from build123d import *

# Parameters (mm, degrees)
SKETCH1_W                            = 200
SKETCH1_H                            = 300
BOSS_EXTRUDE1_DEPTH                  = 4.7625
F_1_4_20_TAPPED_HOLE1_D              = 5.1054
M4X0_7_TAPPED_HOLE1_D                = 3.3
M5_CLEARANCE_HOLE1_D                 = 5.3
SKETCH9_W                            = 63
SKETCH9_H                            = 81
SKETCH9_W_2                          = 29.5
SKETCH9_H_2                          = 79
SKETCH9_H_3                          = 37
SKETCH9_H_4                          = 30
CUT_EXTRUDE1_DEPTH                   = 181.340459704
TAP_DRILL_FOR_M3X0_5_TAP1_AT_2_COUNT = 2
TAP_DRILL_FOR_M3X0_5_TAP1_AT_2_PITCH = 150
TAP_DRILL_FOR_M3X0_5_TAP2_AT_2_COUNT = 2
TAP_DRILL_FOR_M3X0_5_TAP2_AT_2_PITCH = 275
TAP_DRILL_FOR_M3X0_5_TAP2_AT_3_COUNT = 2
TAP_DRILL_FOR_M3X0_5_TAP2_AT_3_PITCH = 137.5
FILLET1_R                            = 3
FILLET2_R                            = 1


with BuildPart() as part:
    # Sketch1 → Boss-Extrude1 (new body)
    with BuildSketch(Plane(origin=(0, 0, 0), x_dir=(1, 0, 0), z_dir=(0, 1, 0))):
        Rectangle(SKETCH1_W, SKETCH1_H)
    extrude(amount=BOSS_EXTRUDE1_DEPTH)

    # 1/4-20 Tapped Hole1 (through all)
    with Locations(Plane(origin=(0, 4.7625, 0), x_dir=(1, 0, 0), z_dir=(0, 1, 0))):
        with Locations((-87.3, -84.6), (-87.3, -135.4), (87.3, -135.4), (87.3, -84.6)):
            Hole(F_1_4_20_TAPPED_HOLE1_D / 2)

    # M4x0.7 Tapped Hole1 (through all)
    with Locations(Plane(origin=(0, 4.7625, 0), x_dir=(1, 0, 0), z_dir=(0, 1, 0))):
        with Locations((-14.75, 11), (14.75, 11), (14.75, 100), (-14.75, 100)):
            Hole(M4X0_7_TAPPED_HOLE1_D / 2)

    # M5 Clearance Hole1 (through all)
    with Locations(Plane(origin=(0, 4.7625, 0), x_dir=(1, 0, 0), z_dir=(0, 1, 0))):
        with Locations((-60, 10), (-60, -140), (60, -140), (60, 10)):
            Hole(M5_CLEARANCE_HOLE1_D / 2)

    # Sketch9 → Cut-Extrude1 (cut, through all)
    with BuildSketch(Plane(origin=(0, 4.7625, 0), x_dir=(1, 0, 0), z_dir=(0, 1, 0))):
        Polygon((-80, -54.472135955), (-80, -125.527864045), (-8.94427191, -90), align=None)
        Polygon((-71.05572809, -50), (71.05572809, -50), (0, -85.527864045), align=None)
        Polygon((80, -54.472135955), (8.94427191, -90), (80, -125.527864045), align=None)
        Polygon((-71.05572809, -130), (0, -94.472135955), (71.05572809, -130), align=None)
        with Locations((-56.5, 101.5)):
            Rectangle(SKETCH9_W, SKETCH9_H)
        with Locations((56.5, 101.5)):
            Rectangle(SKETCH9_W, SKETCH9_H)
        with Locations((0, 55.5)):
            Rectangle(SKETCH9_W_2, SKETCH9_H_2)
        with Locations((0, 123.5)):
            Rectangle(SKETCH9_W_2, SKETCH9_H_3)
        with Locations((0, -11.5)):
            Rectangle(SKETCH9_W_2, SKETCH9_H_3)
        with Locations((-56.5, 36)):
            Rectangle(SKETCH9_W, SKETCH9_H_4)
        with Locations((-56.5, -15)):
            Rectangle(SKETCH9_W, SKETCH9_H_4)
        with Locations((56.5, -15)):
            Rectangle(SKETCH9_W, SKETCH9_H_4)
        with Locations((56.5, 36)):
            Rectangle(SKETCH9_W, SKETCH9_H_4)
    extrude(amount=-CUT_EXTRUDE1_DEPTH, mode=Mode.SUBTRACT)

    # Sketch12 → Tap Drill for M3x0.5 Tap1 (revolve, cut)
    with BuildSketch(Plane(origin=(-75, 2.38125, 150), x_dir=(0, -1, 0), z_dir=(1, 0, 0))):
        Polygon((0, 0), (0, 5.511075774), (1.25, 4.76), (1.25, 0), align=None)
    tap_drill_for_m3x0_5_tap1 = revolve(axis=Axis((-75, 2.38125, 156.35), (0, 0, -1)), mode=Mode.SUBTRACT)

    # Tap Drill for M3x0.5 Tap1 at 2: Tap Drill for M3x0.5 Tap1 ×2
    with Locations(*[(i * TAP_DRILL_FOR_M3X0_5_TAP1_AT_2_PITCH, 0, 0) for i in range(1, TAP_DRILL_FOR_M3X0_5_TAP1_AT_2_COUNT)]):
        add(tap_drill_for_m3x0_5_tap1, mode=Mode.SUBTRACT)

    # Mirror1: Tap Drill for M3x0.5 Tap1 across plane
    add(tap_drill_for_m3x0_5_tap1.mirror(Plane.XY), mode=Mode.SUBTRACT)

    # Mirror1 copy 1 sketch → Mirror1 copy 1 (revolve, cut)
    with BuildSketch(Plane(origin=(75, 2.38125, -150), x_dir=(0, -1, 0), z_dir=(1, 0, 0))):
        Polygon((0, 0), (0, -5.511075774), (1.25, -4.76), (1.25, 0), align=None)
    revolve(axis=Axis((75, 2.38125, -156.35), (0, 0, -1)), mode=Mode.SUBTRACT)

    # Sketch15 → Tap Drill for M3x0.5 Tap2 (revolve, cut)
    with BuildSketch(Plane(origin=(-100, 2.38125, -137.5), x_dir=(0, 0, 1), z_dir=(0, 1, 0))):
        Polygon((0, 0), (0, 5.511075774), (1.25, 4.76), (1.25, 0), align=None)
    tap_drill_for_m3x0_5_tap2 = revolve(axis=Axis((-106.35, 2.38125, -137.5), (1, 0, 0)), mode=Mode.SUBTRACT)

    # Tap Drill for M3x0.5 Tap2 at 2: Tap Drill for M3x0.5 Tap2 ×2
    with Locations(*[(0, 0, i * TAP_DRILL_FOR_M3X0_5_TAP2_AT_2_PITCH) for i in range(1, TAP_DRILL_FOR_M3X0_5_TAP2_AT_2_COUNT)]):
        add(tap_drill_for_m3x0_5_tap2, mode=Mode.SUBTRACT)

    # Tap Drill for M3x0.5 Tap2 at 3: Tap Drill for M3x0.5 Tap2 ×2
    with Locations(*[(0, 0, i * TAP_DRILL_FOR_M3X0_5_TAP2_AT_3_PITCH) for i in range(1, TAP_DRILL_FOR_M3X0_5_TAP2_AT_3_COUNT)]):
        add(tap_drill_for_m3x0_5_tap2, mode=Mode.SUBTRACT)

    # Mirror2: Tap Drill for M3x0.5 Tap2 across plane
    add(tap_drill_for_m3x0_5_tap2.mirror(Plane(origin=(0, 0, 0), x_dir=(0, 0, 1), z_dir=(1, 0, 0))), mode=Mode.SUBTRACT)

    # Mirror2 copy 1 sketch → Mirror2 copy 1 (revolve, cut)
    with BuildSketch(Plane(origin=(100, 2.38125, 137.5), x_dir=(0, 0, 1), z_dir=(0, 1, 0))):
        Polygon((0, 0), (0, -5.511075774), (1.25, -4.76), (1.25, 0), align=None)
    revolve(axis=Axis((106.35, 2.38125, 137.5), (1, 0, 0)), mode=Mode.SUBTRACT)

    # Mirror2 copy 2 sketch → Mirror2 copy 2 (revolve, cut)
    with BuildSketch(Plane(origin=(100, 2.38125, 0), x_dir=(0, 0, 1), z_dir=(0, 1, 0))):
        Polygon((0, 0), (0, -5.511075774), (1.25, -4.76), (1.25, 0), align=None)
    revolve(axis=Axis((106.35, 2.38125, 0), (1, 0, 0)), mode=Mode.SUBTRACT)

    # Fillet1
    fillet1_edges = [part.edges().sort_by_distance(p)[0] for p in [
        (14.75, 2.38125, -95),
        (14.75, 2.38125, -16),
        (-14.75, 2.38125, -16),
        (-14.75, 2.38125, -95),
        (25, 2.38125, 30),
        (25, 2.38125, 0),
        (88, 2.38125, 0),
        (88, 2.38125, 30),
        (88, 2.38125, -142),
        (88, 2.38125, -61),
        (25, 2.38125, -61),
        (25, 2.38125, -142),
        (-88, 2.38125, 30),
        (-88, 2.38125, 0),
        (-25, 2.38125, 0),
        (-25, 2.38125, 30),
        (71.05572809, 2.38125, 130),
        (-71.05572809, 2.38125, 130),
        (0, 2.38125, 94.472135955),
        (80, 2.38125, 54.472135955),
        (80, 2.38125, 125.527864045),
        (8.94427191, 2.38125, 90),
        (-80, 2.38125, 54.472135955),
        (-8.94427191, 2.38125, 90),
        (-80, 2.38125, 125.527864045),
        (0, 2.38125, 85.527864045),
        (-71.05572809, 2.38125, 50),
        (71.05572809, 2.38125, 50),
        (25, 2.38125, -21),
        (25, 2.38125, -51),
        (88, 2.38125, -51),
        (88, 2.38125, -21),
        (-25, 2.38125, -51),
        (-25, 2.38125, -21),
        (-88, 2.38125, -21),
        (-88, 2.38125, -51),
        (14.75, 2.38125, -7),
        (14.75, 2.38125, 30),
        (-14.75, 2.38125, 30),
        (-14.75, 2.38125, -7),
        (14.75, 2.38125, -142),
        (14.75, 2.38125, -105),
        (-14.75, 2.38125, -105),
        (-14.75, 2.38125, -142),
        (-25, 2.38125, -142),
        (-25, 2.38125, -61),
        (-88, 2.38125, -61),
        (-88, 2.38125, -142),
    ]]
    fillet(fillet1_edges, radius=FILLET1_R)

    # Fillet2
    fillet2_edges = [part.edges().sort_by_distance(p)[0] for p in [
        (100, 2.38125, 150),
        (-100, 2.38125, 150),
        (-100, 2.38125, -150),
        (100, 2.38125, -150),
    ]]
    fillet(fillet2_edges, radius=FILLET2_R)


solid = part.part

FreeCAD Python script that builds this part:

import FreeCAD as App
import Part
import Sketcher

V = App.Vector
Q = App.Units.Quantity


def edges_at(feature, points):
    """Names of the edges that pass closest to the given points."""
    edges = feature.Shape.Edges
    near = lambda p: min(range(len(edges)), key=lambda i: edges[i].distToShape(Part.Vertex(*p))[0])
    return sorted({f"Edge{near(p) + 1}" for p in points})


def add_polygon(sketch, points):
    """Adds a closed chain of lines whose ends are joined by coincident constraints."""
    first, n = sketch.GeometryCount, len(points)
    for a, b in zip(points, points[1:] + points[:1]):
        sketch.addGeometry(Part.LineSegment(App.Vector(*a, 0), App.Vector(*b, 0)), False)
    for i in range(n):
        sketch.addConstraint(Sketcher.Constraint("Coincident", first + i, 2, first + (i + 1) % n, 1))

doc = App.newDocument("Part")
body = doc.addObject("PartDesign::Body", "Body")

# Sketch on XZ plane
sketch1 = body.newObject("Sketcher::SketchObject", "Sketch")
sketch1.AttachmentSupport = (doc.getObject("XZ_Plane"), [""])
sketch1.MapMode = "FlatFace"
add_polygon(sketch1, [(-100, -150), (-100, 150), (100, 150), (100, -150)])  # lines 0-3
sketch1.addConstraint([
    Sketcher.Constraint("Vertical", 0),
    Sketcher.Constraint("Horizontal", 1),
    Sketcher.Constraint("Vertical", 2),
    Sketcher.Constraint("Horizontal", 3),
    Sketcher.Constraint("Symmetric", 0, 2, 2, 2, -1, 1),
    Sketcher.Constraint("DistanceX", 1, 1, 1, 2, 200.0),
    Sketcher.Constraint("DistanceY", 0, 1, 0, 2, 300.0),
])
pad1 = body.newObject("PartDesign::Pad", "Pad")
pad1.Profile = sketch1
pad1.Length = 4.7625
pad1.Reversed = True

# Sketch on XZ plane
sketch2 = body.newObject("Sketcher::SketchObject", "Sketch001")
sketch2.AttachmentSupport = (doc.getObject("XZ_Plane"), [""])
sketch2.MapMode = "FlatFace"
sketch2.AttachmentOffset = App.Placement(V(0, 0, -4.7625), App.Rotation())
sketch2.addGeometry([
    Part.Circle(V(-87.3, 84.6, 0), V(0, 0, 1), 2.5527),
    Part.Circle(V(-87.3, 135.4, 0), V(0, 0, 1), 2.5527),
    Part.Circle(V(87.3, 135.4, 0), V(0, 0, 1), 2.5527),
    Part.Circle(V(87.3, 84.6, 0), V(0, 0, 1), 2.5527),
], False)
sketch2.addConstraint([
    Sketcher.Constraint("Equal", 0, 1),
    Sketcher.Constraint("Equal", 1, 2),
    Sketcher.Constraint("Equal", 2, 3),
    Sketcher.Constraint("Symmetric", 1, 3, 2, 3, -2),
    Sketcher.Constraint("Symmetric", 0, 3, 3, 3, -2),
    Sketcher.Constraint("Vertical", 0, 3, 1, 3),
    Sketcher.Constraint("Diameter", 0, 5.1054),
    Sketcher.Constraint("DistanceX", 0, 3, -1, 1, 87.3),
    Sketcher.Constraint("DistanceY", -1, 1, 0, 3, 84.6),
    Sketcher.Constraint("DistanceY", -1, 1, 1, 3, 135.4),
])
doc.recompute()
hole = body.newObject("PartDesign::Hole", "Hole")
hole.Profile = sketch2
hole.ThreadType = "None"
hole.Diameter = 5.1054
hole.DepthType = "ThroughAll"
hole.Reversed = True

# Sketch on XZ plane
sketch3 = body.newObject("Sketcher::SketchObject", "Sketch002")
sketch3.AttachmentSupport = (doc.getObject("XZ_Plane"), [""])
sketch3.MapMode = "FlatFace"
sketch3.AttachmentOffset = App.Placement(V(0, 0, -4.7625), App.Rotation())
sketch3.addGeometry([
    Part.Circle(V(-14.75, -11, 0), V(0, 0, 1), 1.65),
    Part.Circle(V(14.75, -11, 0), V(0, 0, 1), 1.65),
    Part.Circle(V(14.75, -100, 0), V(0, 0, 1), 1.65),
    Part.Circle(V(-14.75, -100, 0), V(0, 0, 1), 1.65),
], False)
sketch3.addConstraint([
    Sketcher.Constraint("Equal", 0, 1),
    Sketcher.Constraint("Equal", 1, 2),
    Sketcher.Constraint("Equal", 2, 3),
    Sketcher.Constraint("Symmetric", 0, 3, 1, 3, -2),
    Sketcher.Constraint("Symmetric", 2, 3, 3, 3, -2),
    Sketcher.Constraint("Vertical", 1, 3, 2, 3),
    Sketcher.Constraint("Diameter", 0, 3.3),
    Sketcher.Constraint("DistanceY", 0, 3, -1, 1, 11.0),
    Sketcher.Constraint("DistanceY", 2, 3, -1, 1, 100.0),
    Sketcher.Constraint("DistanceX", 0, 3, 1, 3, 29.5),
])
doc.recompute()
hole2 = body.newObject("PartDesign::Hole", "Hole001")
hole2.Profile = sketch3
hole2.ThreadType = "None"
hole2.Diameter = 3.3
hole2.DepthType = "ThroughAll"
hole2.Reversed = True

# Sketch on XZ plane
sketch4 = body.newObject("Sketcher::SketchObject", "Sketch003")
sketch4.AttachmentSupport = (doc.getObject("XZ_Plane"), [""])
sketch4.MapMode = "FlatFace"
sketch4.AttachmentOffset = App.Placement(V(0, 0, -4.7625), App.Rotation())
sketch4.addGeometry([
    Part.Circle(V(-60, -10, 0), V(0, 0, 1), 2.65),
    Part.Circle(V(-60, 140, 0), V(0, 0, 1), 2.65),
    Part.Circle(V(60, 140, 0), V(0, 0, 1), 2.65),
    Part.Circle(V(60, -10, 0), V(0, 0, 1), 2.65),
], False)
sketch4.addConstraint([
    Sketcher.Constraint("Equal", 0, 1),
    Sketcher.Constraint("Equal", 1, 2),
    Sketcher.Constraint("Equal", 2, 3),
    Sketcher.Constraint("Symmetric", 1, 3, 2, 3, -2),
    Sketcher.Constraint("Symmetric", 0, 3, 3, 3, -2),
    Sketcher.Constraint("Vertical", 0, 3, 1, 3),
    Sketcher.Constraint("Diameter", 0, 5.3),
    Sketcher.Constraint("DistanceX", 0, 3, -1, 1, 60.0),
    Sketcher.Constraint("DistanceY", 0, 3, -1, 1, 10.0),
    Sketcher.Constraint("DistanceY", -1, 1, 1, 3, 140.0),
])
doc.recompute()
hole3 = body.newObject("PartDesign::Hole", "Hole002")
hole3.Profile = sketch4
hole3.ThreadType = "None"
hole3.Diameter = 5.3
hole3.DepthType = "ThroughAll"
hole3.Reversed = True

# Sketch on XZ plane
sketch5 = body.newObject("Sketcher::SketchObject", "Sketch004")
sketch5.AttachmentSupport = (doc.getObject("XZ_Plane"), [""])
sketch5.MapMode = "FlatFace"
sketch5.AttachmentOffset = App.Placement(V(0, 0, -4.7625), App.Rotation())
add_polygon(sketch5, [(-80, 54.472136), (-80, 125.527864), (-8.944272, 90)])  # lines 0-2
add_polygon(sketch5, [(71.055728, 50), (-71.055728, 50), (0, 85.527864)])  # lines 3-5
add_polygon(sketch5, [(80, 54.472136), (8.944272, 90), (80, 125.527864)])  # lines 6-8
add_polygon(sketch5, [(0, 94.472136), (-71.055728, 130), (71.055728, 130)])  # lines 9-11
add_polygon(sketch5, [(-88, -142), (-88, -61), (-25, -61), (-25, -142)])  # lines 12-15
add_polygon(sketch5, [(25, -142), (25, -61), (88, -61), (88, -142)])  # lines 16-19
add_polygon(sketch5, [(-14.75, -95), (-14.75, -16), (14.75, -16), (14.75, -95)])  # lines 20-23
add_polygon(sketch5, [(-14.75, -142), (-14.75, -105), (14.75, -105), (14.75, -142)])  # lines 24-27
add_polygon(sketch5, [(-14.75, -7), (-14.75, 30), (14.75, 30), (14.75, -7)])  # lines 28-31
add_polygon(sketch5, [(-88, -51), (-88, -21), (-25, -21), (-25, -51)])  # lines 32-35
add_polygon(sketch5, [(-88, 0), (-88, 30), (-25, 30), (-25, 0)])  # lines 36-39
add_polygon(sketch5, [(25, 0), (25, 30), (88, 30), (88, 0)])  # lines 40-43
add_polygon(sketch5, [(25, -51), (25, -21), (88, -21), (88, -51)])  # lines 44-47
sketch5.addConstraint([
    Sketcher.Constraint("Vertical", 0),
    Sketcher.Constraint("Horizontal", 3),
    Sketcher.Constraint("Vertical", 8),
    Sketcher.Constraint("Horizontal", 10),
    Sketcher.Constraint("Vertical", 12),
    Sketcher.Constraint("Horizontal", 13),
    Sketcher.Constraint("Vertical", 14),
    Sketcher.Constraint("Horizontal", 15),
    Sketcher.Constraint("Vertical", 16),
    Sketcher.Constraint("Horizontal", 17),
    Sketcher.Constraint("Vertical", 18),
    Sketcher.Constraint("Horizontal", 19),
    Sketcher.Constraint("Vertical", 20),
    Sketcher.Constraint("Horizontal", 21),
    Sketcher.Constraint("Vertical", 22),
    Sketcher.Constraint("Horizontal", 23),
    Sketcher.Constraint("Vertical", 24),
    Sketcher.Constraint("Horizontal", 25),
    Sketcher.Constraint("Vertical", 26),
    Sketcher.Constraint("Horizontal", 27),
    Sketcher.Constraint("Vertical", 28),
    Sketcher.Constraint("Horizontal", 29),
    Sketcher.Constraint("Vertical", 30),
    Sketcher.Constraint("Horizontal", 31),
    Sketcher.Constraint("Vertical", 32),
    Sketcher.Constraint("Horizontal", 33),
    Sketcher.Constraint("Vertical", 34),
    Sketcher.Constraint("Horizontal", 35),
    Sketcher.Constraint("Vertical", 36),
    Sketcher.Constraint("Horizontal", 37),
    Sketcher.Constraint("Vertical", 38),
    Sketcher.Constraint("Horizontal", 39),
    Sketcher.Constraint("Vertical", 40),
    Sketcher.Constraint("Horizontal", 41),
    Sketcher.Constraint("Vertical", 42),
    Sketcher.Constraint("Horizontal", 43),
    Sketcher.Constraint("Vertical", 44),
    Sketcher.Constraint("Horizontal", 45),
    Sketcher.Constraint("Vertical", 46),
    Sketcher.Constraint("Horizontal", 47),
    Sketcher.Constraint("Symmetric", 39, 2, 42, 2, -1, 1),
    Sketcher.Constraint("Symmetric", 1, 2, 6, 2, -2),
    Sketcher.Constraint("Symmetric", 0, 2, 7, 2, -2),
    Sketcher.Constraint("Symmetric", 13, 2, 16, 2, -2),
    Sketcher.Constraint("Symmetric", 15, 2, 18, 2, -2),
    Sketcher.Constraint("Symmetric", 37, 2, 40, 2, -2),
    Sketcher.Constraint("Symmetric", 33, 2, 44, 2, -2),
    Sketcher.Constraint("Symmetric", 35, 2, 46, 2, -2),
    Sketcher.Constraint("PointOnObject", 4, 2, -2),
    Sketcher.Constraint("PointOnObject", 11, 2, -2),
    Sketcher.Constraint("PointOnObject", 38, 2, -1),
    Sketcher.Constraint("Parallel", 2, 4),
    Sketcher.Constraint("Parallel", 1, 5),
    Sketcher.Constraint("Parallel", 5, 6),
    Sketcher.Constraint("Parallel", 4, 7),
    Sketcher.Constraint("Parallel", 6, 9),
    Sketcher.Constraint("Parallel", 7, 11),
    Sketcher.Constraint("Horizontal", 19, 2, 26, 2),
    Sketcher.Constraint("Horizontal", 29, 2, 36, 2),
    Sketcher.Constraint("Vertical", 3, 2, 9, 2),
    Sketcher.Constraint("Vertical", 23, 2, 24, 2),
    Sketcher.Constraint("Vertical", 22, 2, 25, 2),
    Sketcher.Constraint("Vertical", 27, 2, 28, 2),
    Sketcher.Constraint("Vertical", 26, 2, 29, 2),
    Sketcher.Constraint("Vertical", 15, 2, 32, 2),
    Sketcher.Constraint("Vertical", 14, 2, 33, 2),
    Sketcher.Constraint("Vertical", 35, 2, 36, 2),
    Sketcher.Constraint("Vertical", 34, 2, 37, 2),
    Sketcher.Constraint("Equal", 26, 28),
    Sketcher.Constraint("Equal", 34, 36),
    Sketcher.Constraint("Equal", 2, 4),
    Sketcher.Constraint("DistanceX", 13, 1, 13, 2, 63.0),
    Sketcher.Constraint("DistanceY", 12, 1, 12, 2, 81.0),
    Sketcher.Constraint("DistanceY", 20, 1, 20, 2, 79.0),
    Sketcher.Constraint("DistanceY", 24, 1, 24, 2, 37.0),
    Sketcher.Constraint("DistanceY", 32, 1, 32, 2, 30.0),
    Sketcher.Constraint("DistanceX", 21, 1, 21, 2, 29.5),
    Sketcher.Constraint("DistanceX", 0, 2, -1, 1, 80.0),
    Sketcher.Constraint("DistanceY", -1, 1, 1, 2, 90.0),
    Sketcher.Constraint("DistanceY", -1, 1, 3, 2, 50.0),
    Sketcher.Constraint("DistanceY", -1, 1, 9, 2, 130.0),
    Sketcher.Constraint("DistanceX", 12, 2, -1, 1, 88.0),
    Sketcher.Constraint("DistanceY", 12, 2, -1, 1, 61.0),
    Sketcher.Constraint("DistanceY", 20, 2, -1, 1, 16.0),
    Sketcher.Constraint("DistanceY", 32, 2, -1, 1, 21.0),
    Sketcher.Constraint("DistanceX", 20, 2, -1, 1, 14.75),
    Sketcher.Constraint("DistanceY", 0, 1, 0, 2, 71.055728),
    Sketcher.Constraint("Distance", 1, 79.442719),
])
pocket1 = body.newObject("PartDesign::Pocket", "Pocket")
pocket1.Profile = sketch5
pocket1.Type = "ThroughAll"
pocket1.Reversed = True

# Sketch on YZ plane
sketch6 = body.newObject("Sketcher::SketchObject", "Sketch005")
sketch6.AttachmentSupport = (doc.getObject("YZ_Plane"), [""])
sketch6.MapMode = "FlatFace"
sketch6.AttachmentOffset = App.Placement(V(0, 0, -75), App.Rotation())
add_polygon(sketch6, [(2.38125, 144.488924), (2.38125, 150), (1.13125, 150), (1.13125, 145.24)])  # lines 0-3
sketch6.addGeometry(Part.LineSegment(V(2.38125, 150, 0), V(2.38125, 144.488924, 0)), True)  # axis
sketch6.addConstraint([
    Sketcher.Constraint("Vertical", 0),
    Sketcher.Constraint("Horizontal", 1),
    Sketcher.Constraint("Vertical", 2),
    Sketcher.Constraint("Vertical", 4),
    Sketcher.Constraint("Coincident", 4, 1, 0, 2),
    Sketcher.Constraint("Equal", 0, 4),
    Sketcher.Constraint("Angle", 3, Q("-31 deg")),
    Sketcher.Constraint("DistanceY", -1, 1, 0, 2, 150.0),
    Sketcher.Constraint("DistanceX", 1, 2, 1, 1, 1.25),
    Sketcher.Constraint("DistanceY", 2, 2, 2, 1, 4.76),
    Sketcher.Constraint("DistanceX", -1, 1, 0, 2, 2.38125),
])
groove = body.newObject("PartDesign::Groove", "Groove")
groove.Profile = sketch6
groove.ReferenceAxis = (sketch6, ["Axis0"])
groove.Angle = 360
doc.recompute()

linearpattern = body.newObject("PartDesign::LinearPattern", "LinearPattern")
linearpattern.Originals = [groove]
linearpattern.Direction = (doc.getObject("X_Axis"), [""])
linearpattern.Mode = "offset"
linearpattern.Offset = 150
linearpattern.Occurrences = 2
body.Tip = linearpattern
doc.recompute()

mirrored = body.newObject("PartDesign::Mirrored", "Mirrored")
mirrored.Originals = [groove]
mirrored.MirrorPlane = (doc.getObject("XY_Plane"), [""])
body.Tip = mirrored

# Sketch on YZ plane
sketch7 = body.newObject("Sketcher::SketchObject", "Sketch006")
sketch7.AttachmentSupport = (doc.getObject("YZ_Plane"), [""])
sketch7.MapMode = "FlatFace"
sketch7.AttachmentOffset = App.Placement(V(0, 0, 75), App.Rotation())
add_polygon(sketch7, [(2.38125, -150), (2.38125, -144.488924), (1.13125, -145.24), (1.13125, -150)])  # lines 0-3
sketch7.addGeometry(Part.LineSegment(V(2.38125, -144.488924, 0), V(2.38125, -150, 0)), True)  # axis
sketch7.addConstraint([
    Sketcher.Constraint("Vertical", 0),
    Sketcher.Constraint("Vertical", 2),
    Sketcher.Constraint("Horizontal", 3),
    Sketcher.Constraint("Vertical", 4),
    Sketcher.Constraint("Coincident", 4, 1, 0, 2),
    Sketcher.Constraint("Horizontal", 2, 2, 4, 2),
    Sketcher.Constraint("Angle", 1, Q("-149 deg")),
    Sketcher.Constraint("DistanceY", 2, 2, -1, 1, 150.0),
    Sketcher.Constraint("DistanceX", 3, 1, 3, 2, 1.25),
    Sketcher.Constraint("DistanceY", 2, 2, 2, 1, 4.76),
    Sketcher.Constraint("DistanceX", -1, 1, 0, 2, 2.38125),
])
groove2 = body.newObject("PartDesign::Groove", "Groove001")
groove2.Profile = sketch7
groove2.ReferenceAxis = (sketch7, ["Axis0"])
groove2.Angle = 360

# Sketch on XZ plane
sketch8 = body.newObject("Sketcher::SketchObject", "Sketch007")
sketch8.AttachmentSupport = (doc.getObject("XZ_Plane"), [""])
sketch8.MapMode = "FlatFace"
sketch8.AttachmentOffset = App.Placement(V(0, 0, -2.38125), App.Rotation())
add_polygon(sketch8, [(-94.488924, -137.5), (-100, -137.5), (-100, -136.25), (-95.24, -136.25)])  # lines 0-3
sketch8.addGeometry(Part.LineSegment(V(-100, -137.5, 0), V(-94.488924, -137.5, 0)), True)  # axis
sketch8.addConstraint([
    Sketcher.Constraint("Horizontal", 0),
    Sketcher.Constraint("Vertical", 1),
    Sketcher.Constraint("Horizontal", 2),
    Sketcher.Constraint("Horizontal", 4),
    Sketcher.Constraint("Coincident", 4, 1, 0, 2),
    Sketcher.Constraint("Equal", 0, 4),
    Sketcher.Constraint("Angle", 3, Q("-59 deg")),
    Sketcher.Constraint("DistanceX", 0, 2, -1, 1, 100.0),
    Sketcher.Constraint("DistanceX", 2, 1, 2, 2, 4.76),
    Sketcher.Constraint("DistanceY", 1, 1, 1, 2, 1.25),
    Sketcher.Constraint("DistanceY", 0, 2, -1, 1, 137.5),
])
groove3 = body.newObject("PartDesign::Groove", "Groove002")
groove3.Profile = sketch8
groove3.ReferenceAxis = (sketch8, ["Axis0"])
groove3.Angle = 360
doc.recompute()

linearpattern2 = body.newObject("PartDesign::LinearPattern", "LinearPattern001")
linearpattern2.Originals = [groove3]
linearpattern2.Direction = (doc.getObject("Z_Axis"), [""])
linearpattern2.Mode = "offset"
linearpattern2.Offset = 275
linearpattern2.Occurrences = 2
body.Tip = linearpattern2
doc.recompute()

linearpattern3 = body.newObject("PartDesign::LinearPattern", "LinearPattern002")
linearpattern3.Originals = [groove3]
linearpattern3.Direction = (doc.getObject("Z_Axis"), [""])
linearpattern3.Mode = "offset"
linearpattern3.Offset = 137.5
linearpattern3.Occurrences = 2
body.Tip = linearpattern3
doc.recompute()

mirrored2 = body.newObject("PartDesign::Mirrored", "Mirrored001")
mirrored2.Originals = [groove3]
mirrored2.MirrorPlane = (doc.getObject("YZ_Plane"), [""])
body.Tip = mirrored2

# Sketch on XZ plane
sketch9 = body.newObject("Sketcher::SketchObject", "Sketch008")
sketch9.AttachmentSupport = (doc.getObject("XZ_Plane"), [""])
sketch9.MapMode = "FlatFace"
sketch9.AttachmentOffset = App.Placement(V(0, 0, -2.38125), App.Rotation())
add_polygon(sketch9, [(100, 137.5), (94.488924, 137.5), (95.24, 138.75), (100, 138.75)])  # lines 0-3
sketch9.addGeometry(Part.LineSegment(V(94.488924, 137.5, 0), V(100, 137.5, 0)), True)  # axis
sketch9.addConstraint([
    Sketcher.Constraint("Horizontal", 0),
    Sketcher.Constraint("Horizontal", 2),
    Sketcher.Constraint("Vertical", 3),
    Sketcher.Constraint("Horizontal", 4),
    Sketcher.Constraint("Coincident", 4, 1, 0, 2),
    Sketcher.Constraint("Vertical", 2, 2, 4, 2),
    Sketcher.Constraint("Angle", 1, Q("59 deg")),
    Sketcher.Constraint("DistanceX", -1, 1, 2, 2, 100.0),
    Sketcher.Constraint("DistanceX", 2, 1, 2, 2, 4.76),
    Sketcher.Constraint("DistanceY", 3, 2, 3, 1, 1.25),
    Sketcher.Constraint("DistanceY", -1, 1, 0, 2, 137.5),
])
groove4 = body.newObject("PartDesign::Groove", "Groove003")
groove4.Profile = sketch9
groove4.ReferenceAxis = (sketch9, ["Axis0"])
groove4.Angle = 360

# Sketch on XZ plane
sketch10 = body.newObject("Sketcher::SketchObject", "Sketch009")
sketch10.AttachmentSupport = (doc.getObject("XZ_Plane"), [""])
sketch10.MapMode = "FlatFace"
sketch10.AttachmentOffset = App.Placement(V(0, 0, -2.38125), App.Rotation())
add_polygon(sketch10, [(100, 0), (94.488924, 0), (95.24, 1.25), (100, 1.25)])  # lines 0-3
sketch10.addConstraint([
    Sketcher.Constraint("Horizontal", 0),
    Sketcher.Constraint("Horizontal", 2),
    Sketcher.Constraint("Vertical", 3),
    Sketcher.Constraint("PointOnObject", 0, 2, -1),
    Sketcher.Constraint("Angle", 1, Q("59 deg")),
    Sketcher.Constraint("DistanceX", -1, 1, 2, 2, 100.0),
    Sketcher.Constraint("DistanceX", 2, 1, 2, 2, 4.76),
    Sketcher.Constraint("DistanceY", 3, 2, 3, 1, 1.25),
])
groove5 = body.newObject("PartDesign::Groove", "Groove004")
groove5.Profile = sketch10
groove5.ReferenceAxis = (sketch10, ["H_Axis"])
groove5.Angle = 360
doc.recompute()

fillet = body.newObject("PartDesign::Fillet", "Fillet")
fillet.Base = (groove5, edges_at(groove5, [
    (14.75, 2.381, -95),
    (14.75, 2.381, -16),
    (-14.75, 2.381, -16),
    (-14.75, 2.381, -95),
    (25, 2.381, 30),
    (25, 2.381, 0),
    (88, 2.381, 0),
    (88, 2.381, 30),
    (88, 2.381, -142),
    (88, 2.381, -61),
    (25, 2.381, -61),
    (25, 2.381, -142),
    (-88, 2.381, 30),
    (-88, 2.381, 0),
    (-25, 2.381, 0),
    (-25, 2.381, 30),
    (71.056, 2.381, 130),
    (-71.056, 2.381, 130),
    (0, 2.381, 94.472),
    (80, 2.381, 54.472),
    (80, 2.381, 125.528),
    (8.944, 2.381, 90),
    (-80, 2.381, 54.472),
    (-8.944, 2.381, 90),
    (-80, 2.381, 125.528),
    (0, 2.381, 85.528),
    (-71.056, 2.381, 50),
    (71.056, 2.381, 50),
    (25, 2.381, -21),
    (25, 2.381, -51),
    (88, 2.381, -51),
    (88, 2.381, -21),
    (-25, 2.381, -51),
    (-25, 2.381, -21),
    (-88, 2.381, -21),
    (-88, 2.381, -51),
    (14.75, 2.381, -7),
    (14.75, 2.381, 30),
    (-14.75, 2.381, 30),
    (-14.75, 2.381, -7),
    (14.75, 2.381, -142),
    (14.75, 2.381, -105),
    (-14.75, 2.381, -105),
    (-14.75, 2.381, -142),
    (-25, 2.381, -142),
    (-25, 2.381, -61),
    (-88, 2.381, -61),
    (-88, 2.381, -142),
]))
fillet.Radius = 3
doc.recompute()

fillet2 = body.newObject("PartDesign::Fillet", "Fillet001")
fillet2.Base = (fillet, edges_at(fillet, [
    (100, 2.381, 150),
    (-100, 2.381, 150),
    (-100, 2.381, -150),
    (100, 2.381, -150),
]))
fillet2.Radius = 1

doc.recompute()
